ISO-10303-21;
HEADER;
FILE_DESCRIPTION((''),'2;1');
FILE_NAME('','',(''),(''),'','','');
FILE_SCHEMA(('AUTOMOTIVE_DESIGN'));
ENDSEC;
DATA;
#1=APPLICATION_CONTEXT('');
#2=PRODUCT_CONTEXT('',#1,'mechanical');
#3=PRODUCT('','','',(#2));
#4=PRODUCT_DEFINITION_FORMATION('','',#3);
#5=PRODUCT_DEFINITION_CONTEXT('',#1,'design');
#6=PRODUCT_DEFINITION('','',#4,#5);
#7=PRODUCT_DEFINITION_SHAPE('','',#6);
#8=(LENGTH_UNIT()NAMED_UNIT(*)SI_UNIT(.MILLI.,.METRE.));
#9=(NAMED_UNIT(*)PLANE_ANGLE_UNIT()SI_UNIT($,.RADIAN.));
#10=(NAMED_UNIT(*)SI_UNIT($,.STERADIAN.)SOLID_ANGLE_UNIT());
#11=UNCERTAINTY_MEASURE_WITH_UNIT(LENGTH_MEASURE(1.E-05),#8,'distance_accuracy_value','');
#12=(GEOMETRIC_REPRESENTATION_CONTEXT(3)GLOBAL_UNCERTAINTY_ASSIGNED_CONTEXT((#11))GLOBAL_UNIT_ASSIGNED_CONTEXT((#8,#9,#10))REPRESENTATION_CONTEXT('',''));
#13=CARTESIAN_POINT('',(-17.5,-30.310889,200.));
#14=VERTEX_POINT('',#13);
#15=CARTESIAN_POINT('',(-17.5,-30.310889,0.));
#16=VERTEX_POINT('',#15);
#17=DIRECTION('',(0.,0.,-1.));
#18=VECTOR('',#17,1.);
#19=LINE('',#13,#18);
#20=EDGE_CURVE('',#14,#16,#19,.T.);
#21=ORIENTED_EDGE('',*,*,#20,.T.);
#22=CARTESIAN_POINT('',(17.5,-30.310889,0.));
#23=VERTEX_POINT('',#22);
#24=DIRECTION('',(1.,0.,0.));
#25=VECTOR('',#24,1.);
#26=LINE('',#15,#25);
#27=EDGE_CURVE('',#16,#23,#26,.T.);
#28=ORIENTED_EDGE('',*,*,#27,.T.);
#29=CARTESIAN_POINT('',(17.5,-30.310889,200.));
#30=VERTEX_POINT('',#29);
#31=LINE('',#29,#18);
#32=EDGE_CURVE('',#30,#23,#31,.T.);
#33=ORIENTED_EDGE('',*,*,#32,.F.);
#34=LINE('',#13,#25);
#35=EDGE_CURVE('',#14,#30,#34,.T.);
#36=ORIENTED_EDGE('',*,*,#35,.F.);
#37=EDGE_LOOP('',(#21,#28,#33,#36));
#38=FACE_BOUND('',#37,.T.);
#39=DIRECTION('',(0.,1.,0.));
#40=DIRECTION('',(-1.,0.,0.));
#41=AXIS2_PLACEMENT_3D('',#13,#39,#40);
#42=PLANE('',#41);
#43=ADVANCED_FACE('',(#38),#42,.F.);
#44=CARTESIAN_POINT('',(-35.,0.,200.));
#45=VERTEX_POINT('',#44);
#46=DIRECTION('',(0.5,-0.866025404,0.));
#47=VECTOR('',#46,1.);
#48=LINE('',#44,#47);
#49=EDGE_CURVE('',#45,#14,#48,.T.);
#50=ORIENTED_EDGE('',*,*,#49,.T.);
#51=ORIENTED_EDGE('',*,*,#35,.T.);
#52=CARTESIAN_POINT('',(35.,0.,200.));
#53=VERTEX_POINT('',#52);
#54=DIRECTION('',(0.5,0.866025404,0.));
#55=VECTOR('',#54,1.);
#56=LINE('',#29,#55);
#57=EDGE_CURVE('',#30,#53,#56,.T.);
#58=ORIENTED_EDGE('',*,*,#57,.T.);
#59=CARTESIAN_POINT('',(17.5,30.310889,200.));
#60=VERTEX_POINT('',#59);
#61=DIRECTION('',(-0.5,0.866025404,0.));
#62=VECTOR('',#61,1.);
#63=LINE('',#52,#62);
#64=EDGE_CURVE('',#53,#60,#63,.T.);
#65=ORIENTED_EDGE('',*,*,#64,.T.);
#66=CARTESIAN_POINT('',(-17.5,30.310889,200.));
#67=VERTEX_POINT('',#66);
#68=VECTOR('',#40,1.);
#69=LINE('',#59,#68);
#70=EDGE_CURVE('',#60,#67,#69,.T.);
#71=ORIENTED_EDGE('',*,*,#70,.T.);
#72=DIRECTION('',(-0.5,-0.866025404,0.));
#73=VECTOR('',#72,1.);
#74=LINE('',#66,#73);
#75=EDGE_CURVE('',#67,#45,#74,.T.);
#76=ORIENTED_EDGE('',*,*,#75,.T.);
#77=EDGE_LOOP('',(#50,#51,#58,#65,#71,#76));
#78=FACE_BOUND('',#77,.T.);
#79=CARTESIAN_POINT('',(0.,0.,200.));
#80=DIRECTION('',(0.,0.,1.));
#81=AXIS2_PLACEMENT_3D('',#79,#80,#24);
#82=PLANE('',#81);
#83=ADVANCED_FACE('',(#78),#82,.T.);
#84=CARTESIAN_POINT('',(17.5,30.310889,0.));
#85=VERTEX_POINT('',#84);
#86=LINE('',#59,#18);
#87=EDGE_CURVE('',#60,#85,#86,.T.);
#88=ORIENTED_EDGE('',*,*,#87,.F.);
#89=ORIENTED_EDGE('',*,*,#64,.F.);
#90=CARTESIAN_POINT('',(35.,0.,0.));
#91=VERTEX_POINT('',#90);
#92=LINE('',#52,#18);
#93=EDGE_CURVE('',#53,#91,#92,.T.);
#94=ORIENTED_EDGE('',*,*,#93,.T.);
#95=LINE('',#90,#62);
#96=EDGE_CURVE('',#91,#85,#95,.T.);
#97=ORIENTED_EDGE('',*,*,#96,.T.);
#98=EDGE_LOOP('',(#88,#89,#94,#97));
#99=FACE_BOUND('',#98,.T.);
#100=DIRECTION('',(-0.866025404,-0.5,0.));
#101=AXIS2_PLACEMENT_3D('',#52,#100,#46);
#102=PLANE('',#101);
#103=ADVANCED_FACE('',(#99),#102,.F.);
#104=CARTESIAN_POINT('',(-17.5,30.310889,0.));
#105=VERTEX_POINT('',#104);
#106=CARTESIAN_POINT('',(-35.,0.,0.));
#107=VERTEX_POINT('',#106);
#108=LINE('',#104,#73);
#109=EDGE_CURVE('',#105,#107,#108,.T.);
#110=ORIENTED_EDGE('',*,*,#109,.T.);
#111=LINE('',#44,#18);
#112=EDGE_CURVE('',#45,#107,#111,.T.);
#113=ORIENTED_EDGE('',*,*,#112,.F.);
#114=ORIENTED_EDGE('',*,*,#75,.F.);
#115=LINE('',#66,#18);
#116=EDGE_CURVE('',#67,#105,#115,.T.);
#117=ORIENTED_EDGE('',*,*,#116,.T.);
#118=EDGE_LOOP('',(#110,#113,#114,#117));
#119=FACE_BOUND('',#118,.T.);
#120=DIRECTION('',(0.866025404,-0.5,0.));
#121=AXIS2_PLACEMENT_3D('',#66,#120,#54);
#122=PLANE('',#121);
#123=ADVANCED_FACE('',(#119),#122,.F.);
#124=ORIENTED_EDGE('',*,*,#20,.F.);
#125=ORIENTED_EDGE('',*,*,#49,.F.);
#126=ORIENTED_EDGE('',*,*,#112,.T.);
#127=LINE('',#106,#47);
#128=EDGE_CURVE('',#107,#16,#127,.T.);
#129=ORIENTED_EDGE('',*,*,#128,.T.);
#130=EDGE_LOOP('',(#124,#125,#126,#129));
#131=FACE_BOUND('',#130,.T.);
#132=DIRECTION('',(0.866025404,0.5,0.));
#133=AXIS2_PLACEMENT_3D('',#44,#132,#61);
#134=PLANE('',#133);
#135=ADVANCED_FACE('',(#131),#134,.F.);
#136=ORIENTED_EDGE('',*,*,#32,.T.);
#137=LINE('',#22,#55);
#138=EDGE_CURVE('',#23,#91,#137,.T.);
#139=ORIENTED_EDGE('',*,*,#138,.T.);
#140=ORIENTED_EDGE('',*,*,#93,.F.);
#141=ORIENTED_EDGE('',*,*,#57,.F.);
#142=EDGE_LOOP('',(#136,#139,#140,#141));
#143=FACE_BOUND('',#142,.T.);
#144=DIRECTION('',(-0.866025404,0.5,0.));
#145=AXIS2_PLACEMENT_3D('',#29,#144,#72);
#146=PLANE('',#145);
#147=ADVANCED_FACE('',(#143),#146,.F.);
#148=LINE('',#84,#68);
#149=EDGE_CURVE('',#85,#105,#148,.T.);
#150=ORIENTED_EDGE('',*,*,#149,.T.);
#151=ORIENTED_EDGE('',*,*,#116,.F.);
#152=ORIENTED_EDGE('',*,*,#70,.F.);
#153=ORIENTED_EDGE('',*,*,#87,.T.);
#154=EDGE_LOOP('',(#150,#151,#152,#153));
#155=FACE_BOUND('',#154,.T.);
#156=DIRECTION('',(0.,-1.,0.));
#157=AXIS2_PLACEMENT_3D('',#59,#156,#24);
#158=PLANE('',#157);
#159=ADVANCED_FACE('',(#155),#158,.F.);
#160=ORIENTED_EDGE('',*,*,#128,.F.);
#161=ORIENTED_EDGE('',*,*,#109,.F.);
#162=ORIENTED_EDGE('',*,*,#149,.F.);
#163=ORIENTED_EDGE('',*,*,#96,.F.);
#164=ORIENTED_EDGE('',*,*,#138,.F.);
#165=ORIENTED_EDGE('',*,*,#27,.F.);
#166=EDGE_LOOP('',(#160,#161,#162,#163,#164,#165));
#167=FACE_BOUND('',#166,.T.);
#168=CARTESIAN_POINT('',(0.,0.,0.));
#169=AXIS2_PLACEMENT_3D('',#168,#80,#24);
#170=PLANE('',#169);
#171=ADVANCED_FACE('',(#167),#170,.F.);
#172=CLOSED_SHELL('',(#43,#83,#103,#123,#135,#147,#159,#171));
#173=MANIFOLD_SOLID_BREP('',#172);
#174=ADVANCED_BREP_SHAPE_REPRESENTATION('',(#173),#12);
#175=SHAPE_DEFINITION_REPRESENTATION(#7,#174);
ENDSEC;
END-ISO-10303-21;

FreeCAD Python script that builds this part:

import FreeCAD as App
import Part
import Sketcher
Q = App.Units.Quantity


def add_polygon(sketch, points):
    """Adds a closed chain of lines whose ends are joined by coincident constraints."""
    first, n = sketch.GeometryCount, len(points)
    for a, b in zip(points, points[1:] + points[:1]):
        sketch.addGeometry(Part.LineSegment(App.Vector(*a, 0), App.Vector(*b, 0)), False)
    for i in range(n):
        sketch.addConstraint(Sketcher.Constraint("Coincident", first + i, 2, first + (i + 1) % n, 1))

doc = App.newDocument("Part")
body = doc.addObject("PartDesign::Body", "Body")

sketch1 = doc.addObject("Sketcher::SketchObject", "Sketch")
body.addObject(sketch1)
sketch1.AttachmentSupport = (doc.XY_Plane, [""])
sketch1.MapMode = "FlatFace"
add_polygon(sketch1, [(35, 0), (18, 30), (-18, 30), (-35, 0), (-18, -30), (18, -30)])
sketch1.addConstraint([
    Sketcher.Constraint("Horizontal", 1),
    Sketcher.Constraint("Horizontal", 4),
    Sketcher.Constraint("Symmetric", 0, 2, 3, 2, -1, 1),
    Sketcher.Constraint("Symmetric", 2, 2, 5, 2, -1, 1),
    Sketcher.Constraint("PointOnObject", 2, 2, -1),
    Sketcher.Constraint("Parallel", 2, 5),
    Sketcher.Constraint("Vertical", 1, 2, 3, 2),
    Sketcher.Constraint("DistanceX", 1, 2, 1, 1, Q("35 mm")),
    Sketcher.Constraint("Angle", 0, Q("120 deg")),
    Sketcher.Constraint("Distance", 0, Q("35 mm")),
])
pad1 = doc.addObject("PartDesign::Pad", "Pad")
body.addObject(pad1)
pad1.Profile = sketch1
pad1.Length = 200

doc.recompute()
